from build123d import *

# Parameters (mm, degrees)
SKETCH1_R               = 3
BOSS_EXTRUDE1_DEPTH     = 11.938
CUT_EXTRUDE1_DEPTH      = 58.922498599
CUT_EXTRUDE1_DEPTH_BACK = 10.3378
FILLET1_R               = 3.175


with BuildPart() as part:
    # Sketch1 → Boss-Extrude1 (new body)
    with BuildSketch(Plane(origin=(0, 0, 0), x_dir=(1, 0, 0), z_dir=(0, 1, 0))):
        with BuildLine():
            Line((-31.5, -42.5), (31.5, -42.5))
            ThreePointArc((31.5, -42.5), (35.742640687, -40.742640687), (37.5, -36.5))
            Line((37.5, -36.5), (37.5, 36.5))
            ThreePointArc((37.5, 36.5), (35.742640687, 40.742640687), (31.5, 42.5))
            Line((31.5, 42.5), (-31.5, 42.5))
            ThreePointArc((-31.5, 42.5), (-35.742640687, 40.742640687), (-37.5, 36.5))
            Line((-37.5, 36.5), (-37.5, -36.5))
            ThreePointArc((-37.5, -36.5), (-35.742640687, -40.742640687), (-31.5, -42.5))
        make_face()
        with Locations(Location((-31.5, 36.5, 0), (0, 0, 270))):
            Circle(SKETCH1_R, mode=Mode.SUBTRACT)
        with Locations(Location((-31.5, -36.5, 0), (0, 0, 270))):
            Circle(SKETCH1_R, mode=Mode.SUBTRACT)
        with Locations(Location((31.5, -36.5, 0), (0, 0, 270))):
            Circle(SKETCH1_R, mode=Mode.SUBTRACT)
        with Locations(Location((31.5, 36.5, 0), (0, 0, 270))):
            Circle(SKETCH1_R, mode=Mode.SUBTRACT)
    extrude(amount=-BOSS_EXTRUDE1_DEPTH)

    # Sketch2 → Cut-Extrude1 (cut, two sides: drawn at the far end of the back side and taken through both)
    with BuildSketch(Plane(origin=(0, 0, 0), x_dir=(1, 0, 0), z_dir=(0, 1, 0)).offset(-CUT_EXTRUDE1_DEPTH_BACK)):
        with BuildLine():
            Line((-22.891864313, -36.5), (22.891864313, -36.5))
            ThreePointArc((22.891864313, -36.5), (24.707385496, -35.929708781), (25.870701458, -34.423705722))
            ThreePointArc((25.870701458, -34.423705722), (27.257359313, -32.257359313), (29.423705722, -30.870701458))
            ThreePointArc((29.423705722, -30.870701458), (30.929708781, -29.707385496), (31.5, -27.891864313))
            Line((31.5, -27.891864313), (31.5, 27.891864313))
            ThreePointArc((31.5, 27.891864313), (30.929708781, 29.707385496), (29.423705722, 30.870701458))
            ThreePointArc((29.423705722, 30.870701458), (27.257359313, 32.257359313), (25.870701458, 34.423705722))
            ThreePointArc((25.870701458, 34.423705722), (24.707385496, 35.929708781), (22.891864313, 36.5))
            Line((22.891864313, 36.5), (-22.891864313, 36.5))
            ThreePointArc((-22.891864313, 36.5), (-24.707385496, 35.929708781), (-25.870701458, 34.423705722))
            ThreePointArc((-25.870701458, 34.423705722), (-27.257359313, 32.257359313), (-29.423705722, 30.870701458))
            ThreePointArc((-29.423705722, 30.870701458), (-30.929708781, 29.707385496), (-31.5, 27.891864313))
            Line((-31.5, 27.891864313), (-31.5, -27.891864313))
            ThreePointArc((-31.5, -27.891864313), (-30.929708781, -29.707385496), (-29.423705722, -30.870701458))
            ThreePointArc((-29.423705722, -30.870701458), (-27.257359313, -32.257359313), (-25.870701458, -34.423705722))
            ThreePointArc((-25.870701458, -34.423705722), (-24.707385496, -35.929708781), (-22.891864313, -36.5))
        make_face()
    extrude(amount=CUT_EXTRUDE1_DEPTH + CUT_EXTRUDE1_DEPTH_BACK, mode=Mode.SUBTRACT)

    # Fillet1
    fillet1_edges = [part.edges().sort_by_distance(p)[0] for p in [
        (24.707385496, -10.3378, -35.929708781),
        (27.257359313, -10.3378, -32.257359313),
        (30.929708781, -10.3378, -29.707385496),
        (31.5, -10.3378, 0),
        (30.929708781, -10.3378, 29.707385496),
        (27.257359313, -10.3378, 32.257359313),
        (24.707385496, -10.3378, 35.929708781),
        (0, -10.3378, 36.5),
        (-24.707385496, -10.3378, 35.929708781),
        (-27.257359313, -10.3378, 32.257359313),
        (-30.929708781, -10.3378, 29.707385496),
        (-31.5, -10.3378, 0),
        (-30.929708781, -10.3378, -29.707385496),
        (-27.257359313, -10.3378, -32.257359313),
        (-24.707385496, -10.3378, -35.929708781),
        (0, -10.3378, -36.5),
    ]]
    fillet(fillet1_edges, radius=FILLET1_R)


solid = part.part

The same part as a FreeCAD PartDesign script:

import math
import FreeCAD as App
import Part
import Sketcher


def edges_at(feature, points):
    """Names of the edges that pass closest to the given points."""
    edges = feature.Shape.Edges
    near = lambda p: min(range(len(edges)), key=lambda i: edges[i].distToShape(Part.Vertex(*p))[0])
    return sorted({f"Edge{near(p) + 1}" for p in points})

doc = App.newDocument("Part")
body = doc.addObject("PartDesign::Body", "Body")

sketch1 = doc.addObject("Sketcher::SketchObject", "Sketch")
body.addObject(sketch1)
sketch1.AttachmentSupport = (doc.XZ_Plane, [""])
sketch1.MapMode = "FlatFace"
sketch1.addGeometry(Part.LineSegment(App.Vector(-31.5, 42.5, 0), App.Vector(31.5, 42.5, 0)), False)
sketch1.addGeometry(Part.ArcOfCircle(Part.Circle(App.Vector(31.5, 36.5, 0), App.Vector(0, 0, 1), 6), math.radians(0), math.radians(90)), False)
sketch1.addGeometry(Part.LineSegment(App.Vector(37.5, 36.5, 0), App.Vector(37.5, -36.5, 0)), False)
sketch1.addGeometry(Part.ArcOfCircle(Part.Circle(App.Vector(31.5, -36.5, 0), App.Vector(0, 0, 1), 6), math.radians(-90), math.radians(0)), False)
sketch1.addGeometry(Part.LineSegment(App.Vector(31.5, -42.5, 0), App.Vector(-31.5, -42.5, 0)), False)
sketch1.addGeometry(Part.ArcOfCircle(Part.Circle(App.Vector(-31.5, -36.5, 0), App.Vector(0, 0, 1), 6), math.radians(180), math.radians(270)), False)
sketch1.addGeometry(Part.LineSegment(App.Vector(-37.5, -36.5, 0), App.Vector(-37.5, 36.5, 0)), False)
sketch1.addGeometry(Part.ArcOfCircle(Part.Circle(App.Vector(-31.5, 36.5, 0), App.Vector(0, 0, 1), 6), math.radians(90), math.radians(180)), False)
sketch1.addGeometry(Part.Circle(App.Vector(-31.5, 36.5, 0), App.Vector(0, 0, 1), 3), False)
sketch1.addGeometry(Part.Circle(App.Vector(31.5, 36.5, 0), App.Vector(0, 0, 1), 3), False)
sketch1.addGeometry(Part.Circle(App.Vector(-31.5, -36.5, 0), App.Vector(0, 0, 1), 3), False)
sketch1.addGeometry(Part.Circle(App.Vector(31.5, -36.5, 0), App.Vector(0, 0, 1), 3), False)
sketch1.addConstraint(Sketcher.Constraint("Tangent", 0, 2, 1, 2))
sketch1.addConstraint(Sketcher.Constraint("Tangent", 1, 1, 2, 1))
sketch1.addConstraint(Sketcher.Constraint("Tangent", 2, 2, 3, 2))
sketch1.addConstraint(Sketcher.Constraint("Tangent", 3, 1, 4, 1))
sketch1.addConstraint(Sketcher.Constraint("Tangent", 4, 2, 5, 2))
sketch1.addConstraint(Sketcher.Constraint("Tangent", 5, 1, 6, 1))
sketch1.addConstraint(Sketcher.Constraint("Tangent", 6, 2, 7, 2))
sketch1.addConstraint(Sketcher.Constraint("Tangent", 7, 1, 0, 1))
sketch1.addConstraint(Sketcher.Constraint("Horizontal", 0))
sketch1.addConstraint(Sketcher.Constraint("Vertical", 2))
sketch1.addConstraint(Sketcher.Constraint("Horizontal", 4))
sketch1.addConstraint(Sketcher.Constraint("Vertical", 6))
sketch1.addConstraint(Sketcher.Constraint("Coincident", 8, 3, 7, 3))
sketch1.addConstraint(Sketcher.Constraint("Coincident", 9, 3, 1, 3))
sketch1.addConstraint(Sketcher.Constraint("Coincident", 10, 3, 5, 3))
sketch1.addConstraint(Sketcher.Constraint("Coincident", 11, 3, 3, 3))
sketch1.addConstraint(Sketcher.Constraint("Equal", 1, 3))
sketch1.addConstraint(Sketcher.Constraint("Equal", 3, 5))
sketch1.addConstraint(Sketcher.Constraint("Equal", 5, 7))
sketch1.addConstraint(Sketcher.Constraint("Equal", 8, 9))
sketch1.addConstraint(Sketcher.Constraint("Equal", 9, 10))
sketch1.addConstraint(Sketcher.Constraint("Equal", 10, 11))
sketch1.addConstraint(Sketcher.Constraint("Symmetric", 1, 3, 5, 3, -1, 1))
sketch1.addConstraint(Sketcher.Constraint("Diameter", 8, 6.0))
sketch1.addConstraint(Sketcher.Constraint("Radius", 1, 6.0))
sketch1.addConstraint(Sketcher.Constraint("DistanceX", 0, 1, 0, 2, 63.0))
sketch1.addConstraint(Sketcher.Constraint("DistanceY", 2, 2, 2, 1, 73.0))
pad1 = doc.addObject("PartDesign::Pad", "Pad")
body.addObject(pad1)
pad1.Profile = sketch1
pad1.Length = 11.938

sketch2 = doc.addObject("Sketcher::SketchObject", "Sketch001")
body.addObject(sketch2)
sketch2.AttachmentSupport = (doc.XZ_Plane, [""])
sketch2.MapMode = "FlatFace"
sketch2.addGeometry(Part.LineSegment(App.Vector(-22.891864, 36.5, 0), App.Vector(22.891864, 36.5, 0)), False)
sketch2.addGeometry(Part.ArcOfCircle(Part.Circle(App.Vector(22.891864, 33.325, 0), App.Vector(0, 0, 1), 3.175), math.radians(20.245847), math.radians(90)), False)
sketch2.addGeometry(Part.ArcOfCircle(Part.Circle(App.Vector(31.5, 36.5, 0), App.Vector(0, 0, 1), 6), math.radians(-159.754153), math.radians(-110.245847)), False)
sketch2.addGeometry(Part.ArcOfCircle(Part.Circle(App.Vector(28.325, 27.891864, 0), App.Vector(0, 0, 1), 3.175), math.radians(0), math.radians(69.754153)), False)
sketch2.addGeometry(Part.LineSegment(App.Vector(31.5, 27.891864, 0), App.Vector(31.5, -27.891864, 0)), False)
sketch2.addGeometry(Part.ArcOfCircle(Part.Circle(App.Vector(28.325, -27.891864, 0), App.Vector(0, 0, 1), 3.175), math.radians(-69.754153), math.radians(0)), False)
sketch2.addGeometry(Part.ArcOfCircle(Part.Circle(App.Vector(31.5, -36.5, 0), App.Vector(0, 0, 1), 6), math.radians(110.245847), math.radians(159.754153)), False)
sketch2.addGeometry(Part.ArcOfCircle(Part.Circle(App.Vector(22.891864, -33.325, 0), App.Vector(0, 0, 1), 3.175), math.radians(-90), math.radians(-20.245847)), False)
sketch2.addGeometry(Part.LineSegment(App.Vector(22.891864, -36.5, 0), App.Vector(-22.891864, -36.5, 0)), False)
sketch2.addGeometry(Part.ArcOfCircle(Part.Circle(App.Vector(-22.891864, -33.325, 0), App.Vector(0, 0, 1), 3.175), math.radians(-159.754153), math.radians(-90)), False)
sketch2.addGeometry(Part.ArcOfCircle(Part.Circle(App.Vector(-31.5, -36.5, 0), App.Vector(0, 0, 1), 6), math.radians(20.245847), math.radians(69.754153)), False)
sketch2.addGeometry(Part.ArcOfCircle(Part.Circle(App.Vector(-28.325, -27.891864, 0), App.Vector(0, 0, 1), 3.175), math.radians(180), math.radians(249.754153)), False)
sketch2.addGeometry(Part.LineSegment(App.Vector(-31.5, -27.891864, 0), App.Vector(-31.5, 27.891864, 0)), False)
sketch2.addGeometry(Part.ArcOfCircle(Part.Circle(App.Vector(-28.325, 27.891864, 0), App.Vector(0, 0, 1), 3.175), math.radians(110.245847), math.radians(180)), False)
sketch2.addGeometry(Part.ArcOfCircle(Part.Circle(App.Vector(-31.5, 36.5, 0), App.Vector(0, 0, 1), 6), math.radians(-69.754153), math.radians(-20.245847)), False)
sketch2.addGeometry(Part.ArcOfCircle(Part.Circle(App.Vector(-22.891864, 33.325, 0), App.Vector(0, 0, 1), 3.175), math.radians(90), math.radians(159.754153)), False)
sketch2.addConstraint(Sketcher.Constraint("Tangent", 0, 2, 1, 2))
sketch2.addConstraint(Sketcher.Constraint("Tangent", 1, 1, 2, 1))
sketch2.addConstraint(Sketcher.Constraint("Tangent", 2, 2, 3, 2))
sketch2.addConstraint(Sketcher.Constraint("Tangent", 3, 1, 4, 1))
sketch2.addConstraint(Sketcher.Constraint("Tangent", 4, 2, 5, 2))
sketch2.addConstraint(Sketcher.Constraint("Tangent", 5, 1, 6, 1))
sketch2.addConstraint(Sketcher.Constraint("Tangent", 6, 2, 7, 2))
sketch2.addConstraint(Sketcher.Constraint("Tangent", 7, 1, 8, 1))
sketch2.addConstraint(Sketcher.Constraint("Tangent", 8, 2, 9, 2))
sketch2.addConstraint(Sketcher.Constraint("Tangent", 9, 1, 10, 1))
sketch2.addConstraint(Sketcher.Constraint("Tangent", 10, 2, 11, 2))
sketch2.addConstraint(Sketcher.Constraint("Tangent", 11, 1, 12, 1))
sketch2.addConstraint(Sketcher.Constraint("Tangent", 12, 2, 13, 2))
sketch2.addConstraint(Sketcher.Constraint("Tangent", 13, 1, 14, 1))
sketch2.addConstraint(Sketcher.Constraint("Tangent", 14, 2, 15, 2))
sketch2.addConstraint(Sketcher.Constraint("Tangent", 15, 1, 0, 1))
sketch2.addConstraint(Sketcher.Constraint("Horizontal", 0))
sketch2.addConstraint(Sketcher.Constraint("Vertical", 4))
sketch2.addConstraint(Sketcher.Constraint("Horizontal", 8))
sketch2.addConstraint(Sketcher.Constraint("Vertical", 12))
sketch2.addConstraint(Sketcher.Constraint("Equal", 1, 3))
sketch2.addConstraint(Sketcher.Constraint("Equal", 3, 5))
sketch2.addConstraint(Sketcher.Constraint("Equal", 2, 6))
sketch2.addConstraint(Sketcher.Constraint("Equal", 5, 7))
sketch2.addConstraint(Sketcher.Constraint("Equal", 7, 9))
sketch2.addConstraint(Sketcher.Constraint("Equal", 6, 10))
sketch2.addConstraint(Sketcher.Constraint("Equal", 9, 11))
sketch2.addConstraint(Sketcher.Constraint("Equal", 11, 13))
sketch2.addConstraint(Sketcher.Constraint("Equal", 10, 14))
sketch2.addConstraint(Sketcher.Constraint("Equal", 13, 15))
sketch2.addConstraint(Sketcher.Constraint("Symmetric", 1, 3, 9, 3, -1, 1))
sketch2.addConstraint(Sketcher.Constraint("Symmetric", 3, 3, 11, 3, -1, 1))
sketch2.addConstraint(Sketcher.Constraint("Symmetric", 6, 3, 14, 3, -1, 1))
sketch2.addConstraint(Sketcher.Constraint("Symmetric", 6, 3, 10, 3, -2))
sketch2.addConstraint(Sketcher.Constraint("Horizontal", 14, 3, 0, 2))
sketch2.addConstraint(Sketcher.Constraint("Vertical", 6, 3, 3, 1))
sketch2.addConstraint(Sketcher.Constraint("Radius", 2, 6.0))
sketch2.addConstraint(Sketcher.Constraint("Radius", 1, 3.175))
sketch2.addConstraint(Sketcher.Constraint("DistanceY", 6, 3, 2, 3, 73.0))
sketch2.addConstraint(Sketcher.Constraint("DistanceX", 10, 3, 6, 3, 63.0))
pocket1 = doc.addObject("PartDesign::Pocket", "Pocket")
body.addObject(pocket1)
pocket1.Profile = sketch2
pocket1.Type = "TwoLengths"
pocket1.Length = 58.922499
pocket1.Length2 = 10.3378
doc.recompute()

fillet = doc.addObject("PartDesign::Fillet", "Fillet")
body.addObject(fillet)
fillet.Base = (pocket1, edges_at(pocket1, [
    (24.707, -10.338, -35.93),
    (27.257, -10.338, -32.257),
    (30.93, -10.338, -29.707),
    (31.5, -10.338, 0),
    (30.93, -10.338, 29.707),
    (27.257, -10.338, 32.257),
    (24.707, -10.338, 35.93),
    (0, -10.338, 36.5),
    (-24.707, -10.338, 35.93),
    (-27.257, -10.338, 32.257),
    (-30.93, -10.338, 29.707),
    (-31.5, -10.338, 0),
    (-30.93, -10.338, -29.707),
    (-27.257, -10.338, -32.257),
    (-24.707, -10.338, -35.93),
    (0, -10.338, -36.5),
]))
fillet.Radius = 3.175

doc.recompute()
